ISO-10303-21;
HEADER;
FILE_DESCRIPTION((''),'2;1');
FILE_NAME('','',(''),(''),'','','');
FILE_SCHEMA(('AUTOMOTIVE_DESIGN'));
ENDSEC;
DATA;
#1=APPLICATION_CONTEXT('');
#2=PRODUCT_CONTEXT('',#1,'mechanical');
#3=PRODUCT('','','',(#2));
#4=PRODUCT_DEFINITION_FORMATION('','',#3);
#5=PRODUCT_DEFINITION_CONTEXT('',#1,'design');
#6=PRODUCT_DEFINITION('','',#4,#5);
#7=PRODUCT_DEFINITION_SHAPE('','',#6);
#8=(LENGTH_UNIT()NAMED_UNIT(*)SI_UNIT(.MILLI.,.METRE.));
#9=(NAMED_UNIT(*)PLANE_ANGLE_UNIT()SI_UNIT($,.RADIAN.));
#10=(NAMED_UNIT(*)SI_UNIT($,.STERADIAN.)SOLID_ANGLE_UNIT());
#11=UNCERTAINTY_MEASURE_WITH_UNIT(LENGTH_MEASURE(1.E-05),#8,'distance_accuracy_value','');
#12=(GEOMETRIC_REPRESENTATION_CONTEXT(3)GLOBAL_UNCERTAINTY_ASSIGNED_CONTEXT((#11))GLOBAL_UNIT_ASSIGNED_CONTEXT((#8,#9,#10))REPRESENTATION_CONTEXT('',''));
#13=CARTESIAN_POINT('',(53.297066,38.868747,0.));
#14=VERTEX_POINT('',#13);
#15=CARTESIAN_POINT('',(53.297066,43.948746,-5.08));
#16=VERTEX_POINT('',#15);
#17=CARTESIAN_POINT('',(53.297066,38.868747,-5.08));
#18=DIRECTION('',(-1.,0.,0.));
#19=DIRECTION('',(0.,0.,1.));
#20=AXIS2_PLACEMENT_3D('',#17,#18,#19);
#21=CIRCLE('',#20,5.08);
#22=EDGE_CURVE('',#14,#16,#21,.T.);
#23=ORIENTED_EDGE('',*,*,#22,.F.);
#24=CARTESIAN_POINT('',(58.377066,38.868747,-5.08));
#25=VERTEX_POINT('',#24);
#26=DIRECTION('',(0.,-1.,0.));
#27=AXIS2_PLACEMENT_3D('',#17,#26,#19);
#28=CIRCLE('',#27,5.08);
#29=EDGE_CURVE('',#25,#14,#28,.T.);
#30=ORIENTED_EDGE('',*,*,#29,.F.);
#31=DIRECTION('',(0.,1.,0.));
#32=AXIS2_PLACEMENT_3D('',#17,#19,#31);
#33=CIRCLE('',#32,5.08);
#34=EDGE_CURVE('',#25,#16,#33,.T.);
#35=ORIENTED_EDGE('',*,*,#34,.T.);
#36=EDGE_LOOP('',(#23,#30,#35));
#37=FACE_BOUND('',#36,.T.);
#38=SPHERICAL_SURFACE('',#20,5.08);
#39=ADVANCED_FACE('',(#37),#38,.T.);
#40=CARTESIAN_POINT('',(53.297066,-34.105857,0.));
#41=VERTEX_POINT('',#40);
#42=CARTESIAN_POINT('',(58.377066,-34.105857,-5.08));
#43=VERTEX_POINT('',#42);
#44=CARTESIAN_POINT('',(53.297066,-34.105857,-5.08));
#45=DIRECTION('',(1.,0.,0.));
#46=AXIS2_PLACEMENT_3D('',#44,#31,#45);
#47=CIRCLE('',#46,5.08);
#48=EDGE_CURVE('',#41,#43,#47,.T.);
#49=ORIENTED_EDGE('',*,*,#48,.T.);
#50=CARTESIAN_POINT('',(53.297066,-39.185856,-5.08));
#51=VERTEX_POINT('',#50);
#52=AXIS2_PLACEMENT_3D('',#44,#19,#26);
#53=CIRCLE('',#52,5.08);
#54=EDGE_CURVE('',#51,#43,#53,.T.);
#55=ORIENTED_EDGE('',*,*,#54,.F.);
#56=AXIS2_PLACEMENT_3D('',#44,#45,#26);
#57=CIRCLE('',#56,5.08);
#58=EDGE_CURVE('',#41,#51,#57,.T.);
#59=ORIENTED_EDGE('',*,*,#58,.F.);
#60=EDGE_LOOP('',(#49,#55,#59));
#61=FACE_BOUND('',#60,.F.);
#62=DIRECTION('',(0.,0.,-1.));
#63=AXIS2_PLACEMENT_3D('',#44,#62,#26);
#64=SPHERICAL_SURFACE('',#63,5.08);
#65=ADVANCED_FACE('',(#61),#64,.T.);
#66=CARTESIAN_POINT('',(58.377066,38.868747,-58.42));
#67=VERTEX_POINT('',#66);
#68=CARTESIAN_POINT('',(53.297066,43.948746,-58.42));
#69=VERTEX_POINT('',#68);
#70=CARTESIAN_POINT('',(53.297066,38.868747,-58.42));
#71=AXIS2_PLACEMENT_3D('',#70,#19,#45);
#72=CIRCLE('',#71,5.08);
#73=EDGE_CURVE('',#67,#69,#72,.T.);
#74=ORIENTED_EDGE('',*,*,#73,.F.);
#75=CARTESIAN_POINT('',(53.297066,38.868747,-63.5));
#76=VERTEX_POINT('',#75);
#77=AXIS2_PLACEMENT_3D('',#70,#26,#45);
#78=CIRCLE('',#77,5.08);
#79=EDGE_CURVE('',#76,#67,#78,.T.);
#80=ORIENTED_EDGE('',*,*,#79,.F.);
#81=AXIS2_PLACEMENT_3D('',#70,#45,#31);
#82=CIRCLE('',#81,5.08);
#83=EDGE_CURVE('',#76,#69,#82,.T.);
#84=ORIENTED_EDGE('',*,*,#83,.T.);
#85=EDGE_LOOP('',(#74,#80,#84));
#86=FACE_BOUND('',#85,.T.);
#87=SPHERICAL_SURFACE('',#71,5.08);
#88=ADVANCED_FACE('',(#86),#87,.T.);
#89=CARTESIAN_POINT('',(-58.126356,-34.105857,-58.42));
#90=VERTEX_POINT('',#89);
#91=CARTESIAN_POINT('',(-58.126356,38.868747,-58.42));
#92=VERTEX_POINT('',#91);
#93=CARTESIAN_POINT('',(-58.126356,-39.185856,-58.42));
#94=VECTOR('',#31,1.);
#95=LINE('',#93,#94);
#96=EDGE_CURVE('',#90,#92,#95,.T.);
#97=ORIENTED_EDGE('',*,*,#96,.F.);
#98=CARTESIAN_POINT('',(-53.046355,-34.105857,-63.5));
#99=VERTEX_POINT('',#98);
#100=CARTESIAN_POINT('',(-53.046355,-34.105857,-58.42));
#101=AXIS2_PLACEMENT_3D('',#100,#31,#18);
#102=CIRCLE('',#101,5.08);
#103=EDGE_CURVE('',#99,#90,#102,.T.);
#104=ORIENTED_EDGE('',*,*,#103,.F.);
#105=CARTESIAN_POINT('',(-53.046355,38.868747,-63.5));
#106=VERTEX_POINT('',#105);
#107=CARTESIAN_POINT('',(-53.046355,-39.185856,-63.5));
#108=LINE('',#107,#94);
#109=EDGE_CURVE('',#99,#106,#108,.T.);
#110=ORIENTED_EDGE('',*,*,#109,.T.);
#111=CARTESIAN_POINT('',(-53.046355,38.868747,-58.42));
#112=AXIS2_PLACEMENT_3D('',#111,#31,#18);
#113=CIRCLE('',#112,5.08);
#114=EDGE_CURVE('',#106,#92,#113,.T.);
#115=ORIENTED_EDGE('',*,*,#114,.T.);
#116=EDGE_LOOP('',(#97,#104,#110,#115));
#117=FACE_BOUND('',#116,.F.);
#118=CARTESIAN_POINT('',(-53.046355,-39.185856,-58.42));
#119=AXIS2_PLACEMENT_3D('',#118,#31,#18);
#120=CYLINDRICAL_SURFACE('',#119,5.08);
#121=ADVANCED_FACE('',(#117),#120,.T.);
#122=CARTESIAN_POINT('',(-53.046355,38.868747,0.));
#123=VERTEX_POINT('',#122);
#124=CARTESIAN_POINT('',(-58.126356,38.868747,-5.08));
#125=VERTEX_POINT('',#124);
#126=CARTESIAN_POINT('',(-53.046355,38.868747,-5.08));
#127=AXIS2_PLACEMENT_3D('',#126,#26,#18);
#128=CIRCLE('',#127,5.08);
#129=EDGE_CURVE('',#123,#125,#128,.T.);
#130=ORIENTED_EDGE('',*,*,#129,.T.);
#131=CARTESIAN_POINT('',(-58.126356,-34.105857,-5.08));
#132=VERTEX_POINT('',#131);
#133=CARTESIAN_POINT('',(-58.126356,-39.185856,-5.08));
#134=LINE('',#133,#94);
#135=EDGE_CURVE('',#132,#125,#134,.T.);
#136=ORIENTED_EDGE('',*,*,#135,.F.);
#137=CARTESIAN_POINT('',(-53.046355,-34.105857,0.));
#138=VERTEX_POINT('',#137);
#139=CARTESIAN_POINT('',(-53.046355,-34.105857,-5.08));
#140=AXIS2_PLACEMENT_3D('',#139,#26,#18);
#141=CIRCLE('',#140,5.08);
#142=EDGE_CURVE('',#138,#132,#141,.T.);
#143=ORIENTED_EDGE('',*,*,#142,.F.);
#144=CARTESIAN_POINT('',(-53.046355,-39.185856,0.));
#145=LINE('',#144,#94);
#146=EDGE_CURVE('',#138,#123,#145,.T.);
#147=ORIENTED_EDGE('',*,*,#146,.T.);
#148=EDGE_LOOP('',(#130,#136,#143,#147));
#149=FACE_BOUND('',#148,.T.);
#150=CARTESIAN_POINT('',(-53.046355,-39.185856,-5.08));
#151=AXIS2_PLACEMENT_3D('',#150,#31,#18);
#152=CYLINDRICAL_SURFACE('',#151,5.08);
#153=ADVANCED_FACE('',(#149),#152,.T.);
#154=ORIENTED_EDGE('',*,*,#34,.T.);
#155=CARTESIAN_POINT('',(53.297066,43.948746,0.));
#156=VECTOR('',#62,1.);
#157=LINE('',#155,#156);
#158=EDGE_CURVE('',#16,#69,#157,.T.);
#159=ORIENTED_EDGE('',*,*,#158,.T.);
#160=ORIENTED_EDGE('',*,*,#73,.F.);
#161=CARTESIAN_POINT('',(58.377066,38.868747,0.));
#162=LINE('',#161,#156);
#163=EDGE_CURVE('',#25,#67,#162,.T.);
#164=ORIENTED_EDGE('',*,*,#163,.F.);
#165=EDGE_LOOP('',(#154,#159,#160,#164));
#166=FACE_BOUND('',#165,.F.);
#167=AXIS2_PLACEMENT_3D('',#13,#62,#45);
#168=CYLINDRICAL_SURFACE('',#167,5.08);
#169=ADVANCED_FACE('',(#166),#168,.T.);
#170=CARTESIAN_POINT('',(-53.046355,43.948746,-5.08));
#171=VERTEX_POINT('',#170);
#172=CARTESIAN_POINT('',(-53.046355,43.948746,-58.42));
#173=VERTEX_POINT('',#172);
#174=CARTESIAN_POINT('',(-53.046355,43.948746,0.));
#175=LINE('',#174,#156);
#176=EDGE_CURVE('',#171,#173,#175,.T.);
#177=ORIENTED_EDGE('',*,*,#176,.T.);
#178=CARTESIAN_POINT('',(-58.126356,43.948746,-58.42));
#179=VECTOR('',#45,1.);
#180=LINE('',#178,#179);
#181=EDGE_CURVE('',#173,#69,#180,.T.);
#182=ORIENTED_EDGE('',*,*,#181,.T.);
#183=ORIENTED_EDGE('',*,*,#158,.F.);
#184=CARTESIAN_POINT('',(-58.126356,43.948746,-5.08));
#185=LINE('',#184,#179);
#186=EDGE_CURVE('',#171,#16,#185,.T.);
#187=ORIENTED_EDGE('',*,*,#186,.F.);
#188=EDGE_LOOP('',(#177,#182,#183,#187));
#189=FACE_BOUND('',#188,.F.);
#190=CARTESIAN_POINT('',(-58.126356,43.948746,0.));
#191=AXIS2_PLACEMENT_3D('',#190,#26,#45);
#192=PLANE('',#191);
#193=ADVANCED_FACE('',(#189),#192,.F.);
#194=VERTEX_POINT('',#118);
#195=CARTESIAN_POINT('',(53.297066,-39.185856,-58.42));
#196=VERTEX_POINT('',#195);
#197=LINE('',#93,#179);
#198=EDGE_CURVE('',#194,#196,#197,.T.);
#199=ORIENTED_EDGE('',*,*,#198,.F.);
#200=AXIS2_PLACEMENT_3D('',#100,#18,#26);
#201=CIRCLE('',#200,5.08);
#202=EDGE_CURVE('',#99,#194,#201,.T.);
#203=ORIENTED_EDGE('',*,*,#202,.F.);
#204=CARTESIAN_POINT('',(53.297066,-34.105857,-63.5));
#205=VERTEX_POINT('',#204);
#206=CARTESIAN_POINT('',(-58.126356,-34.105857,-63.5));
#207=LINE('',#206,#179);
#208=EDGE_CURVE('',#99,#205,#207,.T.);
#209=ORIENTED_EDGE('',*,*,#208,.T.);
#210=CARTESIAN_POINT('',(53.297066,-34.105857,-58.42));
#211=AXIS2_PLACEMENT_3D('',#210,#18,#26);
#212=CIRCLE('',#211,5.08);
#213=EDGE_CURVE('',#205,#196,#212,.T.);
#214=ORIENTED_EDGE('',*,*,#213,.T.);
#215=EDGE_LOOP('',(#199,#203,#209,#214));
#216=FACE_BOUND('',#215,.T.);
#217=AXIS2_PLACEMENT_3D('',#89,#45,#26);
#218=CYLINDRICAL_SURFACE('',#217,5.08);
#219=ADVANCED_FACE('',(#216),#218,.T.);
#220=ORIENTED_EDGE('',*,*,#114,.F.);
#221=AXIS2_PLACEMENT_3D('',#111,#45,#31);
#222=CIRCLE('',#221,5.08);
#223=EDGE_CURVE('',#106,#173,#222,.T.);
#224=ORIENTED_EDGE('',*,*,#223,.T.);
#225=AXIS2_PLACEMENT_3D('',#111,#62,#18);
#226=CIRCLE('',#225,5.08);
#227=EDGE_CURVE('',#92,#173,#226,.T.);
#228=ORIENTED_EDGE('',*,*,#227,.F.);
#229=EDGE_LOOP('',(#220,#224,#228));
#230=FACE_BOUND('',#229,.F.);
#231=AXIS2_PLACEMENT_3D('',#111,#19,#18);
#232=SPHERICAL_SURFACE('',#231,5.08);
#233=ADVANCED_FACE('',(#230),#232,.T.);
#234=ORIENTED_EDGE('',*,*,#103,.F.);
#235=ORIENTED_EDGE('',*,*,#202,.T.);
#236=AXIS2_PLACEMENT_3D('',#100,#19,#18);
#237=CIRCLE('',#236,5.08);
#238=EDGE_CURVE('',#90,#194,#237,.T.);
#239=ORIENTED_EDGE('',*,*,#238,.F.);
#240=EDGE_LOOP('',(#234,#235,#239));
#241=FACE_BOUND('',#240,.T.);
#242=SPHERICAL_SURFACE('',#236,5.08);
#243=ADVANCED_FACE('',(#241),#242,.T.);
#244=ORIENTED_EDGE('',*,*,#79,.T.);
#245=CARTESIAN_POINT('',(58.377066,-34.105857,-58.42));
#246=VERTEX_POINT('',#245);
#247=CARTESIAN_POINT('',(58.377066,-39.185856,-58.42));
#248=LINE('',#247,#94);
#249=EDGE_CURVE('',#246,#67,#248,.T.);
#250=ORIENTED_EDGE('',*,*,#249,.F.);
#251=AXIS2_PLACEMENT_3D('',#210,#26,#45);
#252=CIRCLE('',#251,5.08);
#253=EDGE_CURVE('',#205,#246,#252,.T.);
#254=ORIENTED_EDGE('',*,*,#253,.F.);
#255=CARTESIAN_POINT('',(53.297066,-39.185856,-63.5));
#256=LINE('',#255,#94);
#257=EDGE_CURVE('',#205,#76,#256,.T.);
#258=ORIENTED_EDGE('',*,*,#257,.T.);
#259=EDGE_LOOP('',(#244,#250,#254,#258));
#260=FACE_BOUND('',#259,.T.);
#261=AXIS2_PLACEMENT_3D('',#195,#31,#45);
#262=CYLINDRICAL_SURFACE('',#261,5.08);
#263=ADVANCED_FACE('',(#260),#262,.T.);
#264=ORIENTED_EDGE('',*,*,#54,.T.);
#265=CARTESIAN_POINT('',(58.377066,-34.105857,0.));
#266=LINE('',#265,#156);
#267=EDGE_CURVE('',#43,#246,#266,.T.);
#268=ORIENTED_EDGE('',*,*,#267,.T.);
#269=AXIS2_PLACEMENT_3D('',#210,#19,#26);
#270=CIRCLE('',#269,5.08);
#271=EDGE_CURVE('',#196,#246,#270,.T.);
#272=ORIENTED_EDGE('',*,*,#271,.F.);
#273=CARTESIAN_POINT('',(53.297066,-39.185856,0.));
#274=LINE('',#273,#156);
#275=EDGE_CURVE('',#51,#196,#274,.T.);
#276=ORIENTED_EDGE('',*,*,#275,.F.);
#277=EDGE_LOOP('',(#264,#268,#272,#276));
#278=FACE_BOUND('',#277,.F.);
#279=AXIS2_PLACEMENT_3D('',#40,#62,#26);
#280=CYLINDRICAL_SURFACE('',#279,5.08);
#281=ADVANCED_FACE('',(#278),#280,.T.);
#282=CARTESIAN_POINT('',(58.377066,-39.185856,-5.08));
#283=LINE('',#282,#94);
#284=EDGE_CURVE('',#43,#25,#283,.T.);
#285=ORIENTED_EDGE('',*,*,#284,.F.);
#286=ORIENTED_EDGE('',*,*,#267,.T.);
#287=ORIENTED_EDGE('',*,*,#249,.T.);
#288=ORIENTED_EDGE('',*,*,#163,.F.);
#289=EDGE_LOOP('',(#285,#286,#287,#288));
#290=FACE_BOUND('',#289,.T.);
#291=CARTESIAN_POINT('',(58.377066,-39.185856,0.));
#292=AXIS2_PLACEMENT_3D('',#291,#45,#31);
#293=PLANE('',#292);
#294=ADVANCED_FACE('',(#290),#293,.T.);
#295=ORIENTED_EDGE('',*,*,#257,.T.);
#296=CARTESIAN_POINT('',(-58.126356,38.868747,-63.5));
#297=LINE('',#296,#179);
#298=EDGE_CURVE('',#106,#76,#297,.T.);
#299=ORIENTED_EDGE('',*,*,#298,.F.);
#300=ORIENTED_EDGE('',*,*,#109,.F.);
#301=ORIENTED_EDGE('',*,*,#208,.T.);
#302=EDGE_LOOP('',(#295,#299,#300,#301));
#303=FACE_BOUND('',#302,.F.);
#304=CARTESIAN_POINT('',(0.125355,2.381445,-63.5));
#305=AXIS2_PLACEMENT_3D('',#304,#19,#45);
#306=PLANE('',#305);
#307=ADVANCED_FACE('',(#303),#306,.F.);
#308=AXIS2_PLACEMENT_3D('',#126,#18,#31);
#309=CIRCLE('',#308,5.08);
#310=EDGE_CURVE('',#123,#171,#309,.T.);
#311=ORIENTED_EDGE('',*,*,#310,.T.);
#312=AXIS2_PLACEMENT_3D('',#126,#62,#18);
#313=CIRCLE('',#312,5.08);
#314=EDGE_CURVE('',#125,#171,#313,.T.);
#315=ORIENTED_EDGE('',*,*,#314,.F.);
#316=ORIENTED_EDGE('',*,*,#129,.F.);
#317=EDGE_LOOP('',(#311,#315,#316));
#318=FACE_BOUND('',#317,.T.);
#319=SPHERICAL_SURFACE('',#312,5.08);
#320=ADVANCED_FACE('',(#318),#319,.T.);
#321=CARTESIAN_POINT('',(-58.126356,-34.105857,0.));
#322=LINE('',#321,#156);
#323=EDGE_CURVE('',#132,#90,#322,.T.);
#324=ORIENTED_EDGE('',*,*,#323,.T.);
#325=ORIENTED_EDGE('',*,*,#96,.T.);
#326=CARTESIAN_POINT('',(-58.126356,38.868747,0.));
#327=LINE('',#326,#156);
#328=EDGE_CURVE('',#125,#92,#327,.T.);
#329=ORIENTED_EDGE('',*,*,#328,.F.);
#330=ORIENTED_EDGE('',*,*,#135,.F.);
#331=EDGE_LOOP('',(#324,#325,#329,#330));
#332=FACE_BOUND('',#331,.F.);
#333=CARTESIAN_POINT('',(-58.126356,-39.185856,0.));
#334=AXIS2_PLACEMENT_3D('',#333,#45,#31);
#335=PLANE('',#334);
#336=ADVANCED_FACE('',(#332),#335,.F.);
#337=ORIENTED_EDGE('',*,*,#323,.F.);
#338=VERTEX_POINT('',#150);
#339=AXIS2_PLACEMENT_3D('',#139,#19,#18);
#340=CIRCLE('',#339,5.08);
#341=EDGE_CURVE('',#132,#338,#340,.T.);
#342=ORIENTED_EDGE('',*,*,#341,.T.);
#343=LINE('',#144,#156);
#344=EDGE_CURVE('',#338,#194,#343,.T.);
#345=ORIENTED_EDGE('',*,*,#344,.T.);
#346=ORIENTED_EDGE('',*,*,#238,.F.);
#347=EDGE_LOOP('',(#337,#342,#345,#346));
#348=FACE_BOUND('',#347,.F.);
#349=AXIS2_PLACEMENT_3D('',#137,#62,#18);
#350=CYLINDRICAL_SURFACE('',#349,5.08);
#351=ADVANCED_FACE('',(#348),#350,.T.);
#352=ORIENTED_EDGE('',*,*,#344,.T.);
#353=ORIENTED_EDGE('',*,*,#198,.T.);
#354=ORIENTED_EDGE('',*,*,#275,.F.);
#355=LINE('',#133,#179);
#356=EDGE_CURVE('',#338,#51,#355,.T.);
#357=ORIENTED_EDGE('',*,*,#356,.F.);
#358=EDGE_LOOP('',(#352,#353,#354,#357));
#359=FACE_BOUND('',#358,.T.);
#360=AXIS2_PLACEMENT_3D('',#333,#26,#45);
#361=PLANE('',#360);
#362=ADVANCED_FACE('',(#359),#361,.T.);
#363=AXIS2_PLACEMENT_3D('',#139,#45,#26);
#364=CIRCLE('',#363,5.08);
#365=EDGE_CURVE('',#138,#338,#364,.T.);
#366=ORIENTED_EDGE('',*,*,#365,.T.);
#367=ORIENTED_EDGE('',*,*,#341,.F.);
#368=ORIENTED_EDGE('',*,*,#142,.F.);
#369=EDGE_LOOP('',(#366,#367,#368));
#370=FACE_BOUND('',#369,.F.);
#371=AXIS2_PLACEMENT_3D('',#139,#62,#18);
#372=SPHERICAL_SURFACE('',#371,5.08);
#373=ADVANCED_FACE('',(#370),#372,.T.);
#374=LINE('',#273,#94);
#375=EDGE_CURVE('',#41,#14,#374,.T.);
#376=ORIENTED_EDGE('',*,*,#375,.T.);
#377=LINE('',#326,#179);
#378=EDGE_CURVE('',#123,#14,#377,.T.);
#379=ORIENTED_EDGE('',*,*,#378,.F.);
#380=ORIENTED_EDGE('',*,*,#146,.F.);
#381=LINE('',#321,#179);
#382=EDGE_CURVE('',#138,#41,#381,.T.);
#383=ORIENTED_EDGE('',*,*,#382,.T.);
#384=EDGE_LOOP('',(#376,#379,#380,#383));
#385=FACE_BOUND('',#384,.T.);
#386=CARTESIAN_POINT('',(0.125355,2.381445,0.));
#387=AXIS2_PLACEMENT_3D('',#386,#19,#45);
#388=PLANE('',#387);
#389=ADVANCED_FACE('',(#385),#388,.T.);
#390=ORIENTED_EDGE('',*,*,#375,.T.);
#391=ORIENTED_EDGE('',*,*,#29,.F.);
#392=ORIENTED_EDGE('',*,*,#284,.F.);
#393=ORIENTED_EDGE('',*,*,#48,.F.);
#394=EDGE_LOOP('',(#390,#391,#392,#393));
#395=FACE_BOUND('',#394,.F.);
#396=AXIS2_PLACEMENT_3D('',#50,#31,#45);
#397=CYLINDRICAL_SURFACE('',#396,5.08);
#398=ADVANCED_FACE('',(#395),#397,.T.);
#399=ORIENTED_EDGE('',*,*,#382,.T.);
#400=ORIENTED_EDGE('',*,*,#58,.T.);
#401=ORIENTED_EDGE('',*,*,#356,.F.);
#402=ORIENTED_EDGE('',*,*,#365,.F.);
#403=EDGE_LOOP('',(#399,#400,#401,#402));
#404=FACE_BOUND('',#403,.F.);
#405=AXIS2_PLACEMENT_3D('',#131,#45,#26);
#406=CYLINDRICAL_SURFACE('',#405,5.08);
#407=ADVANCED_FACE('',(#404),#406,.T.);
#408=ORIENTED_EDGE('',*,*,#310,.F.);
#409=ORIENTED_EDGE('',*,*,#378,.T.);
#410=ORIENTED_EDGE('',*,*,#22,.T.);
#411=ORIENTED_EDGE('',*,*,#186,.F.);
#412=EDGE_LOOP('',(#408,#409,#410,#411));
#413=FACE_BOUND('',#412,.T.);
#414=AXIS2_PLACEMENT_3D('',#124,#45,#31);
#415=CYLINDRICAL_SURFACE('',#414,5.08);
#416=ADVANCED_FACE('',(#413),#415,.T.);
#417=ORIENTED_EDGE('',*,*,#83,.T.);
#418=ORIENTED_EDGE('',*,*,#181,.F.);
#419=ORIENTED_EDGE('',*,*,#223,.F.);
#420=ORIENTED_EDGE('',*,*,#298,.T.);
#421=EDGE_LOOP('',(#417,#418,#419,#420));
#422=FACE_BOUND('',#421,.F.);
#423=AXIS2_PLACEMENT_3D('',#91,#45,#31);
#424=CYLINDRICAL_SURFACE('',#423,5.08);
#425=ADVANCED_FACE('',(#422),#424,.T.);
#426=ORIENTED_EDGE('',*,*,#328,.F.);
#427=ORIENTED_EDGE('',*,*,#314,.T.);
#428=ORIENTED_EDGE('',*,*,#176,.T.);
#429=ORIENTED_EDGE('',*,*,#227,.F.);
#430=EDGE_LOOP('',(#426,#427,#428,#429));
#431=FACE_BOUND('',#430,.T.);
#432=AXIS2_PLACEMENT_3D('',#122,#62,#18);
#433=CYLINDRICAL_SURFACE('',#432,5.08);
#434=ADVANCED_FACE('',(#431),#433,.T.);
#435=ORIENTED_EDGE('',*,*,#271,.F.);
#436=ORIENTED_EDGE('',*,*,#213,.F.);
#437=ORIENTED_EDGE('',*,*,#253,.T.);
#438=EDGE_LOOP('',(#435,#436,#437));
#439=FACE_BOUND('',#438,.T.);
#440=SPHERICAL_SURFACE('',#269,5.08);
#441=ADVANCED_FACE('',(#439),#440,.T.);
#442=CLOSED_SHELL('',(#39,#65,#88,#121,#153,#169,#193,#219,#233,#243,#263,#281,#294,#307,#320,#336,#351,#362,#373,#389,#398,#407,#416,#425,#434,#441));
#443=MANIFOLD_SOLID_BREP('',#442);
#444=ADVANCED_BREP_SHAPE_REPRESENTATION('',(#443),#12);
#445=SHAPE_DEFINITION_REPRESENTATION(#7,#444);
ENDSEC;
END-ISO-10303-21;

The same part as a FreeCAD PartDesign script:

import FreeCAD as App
import Part
import Sketcher

V = App.Vector


def add_polygon(sketch, points):
    """Adds a closed chain of lines whose ends are joined by coincident constraints."""
    first, n = sketch.GeometryCount, len(points)
    for a, b in zip(points, points[1:] + points[:1]):
        sketch.addGeometry(Part.LineSegment(App.Vector(*a, 0), App.Vector(*b, 0)), False)
    for i in range(n):
        sketch.addConstraint(Sketcher.Constraint("Coincident", first + i, 2, first + (i + 1) % n, 1))

doc = App.newDocument("Part")
params = doc.addObject("Spreadsheet::Sheet", "Params")
for row, (alias, value) in enumerate([
    ("pad1_length", "2.5 in"),
    ("fillet_radius", "0.2 in"),
], start=1):
    params.set(f"A{row}", alias)
    params.set(f"B{row}", "=" + value)
    params.setAlias(f"B{row}", alias)

body = doc.addObject("PartDesign::Body", "Body")

# Sketch on XY plane
sketch1 = body.newObject("Sketcher::SketchObject", "Sketch")
sketch1.AttachmentSupport = (doc.getObject("XY_Plane"), [""])
sketch1.MapMode = "FlatFace"
add_polygon(sketch1, [(-58, 44), (-58, -39), (58, -39), (58, 44)])  # lines 0-3
sketch1.addConstraint([
    Sketcher.Constraint("Vertical", 0),
    Sketcher.Constraint("Horizontal", 1),
    Sketcher.Constraint("Vertical", 2),
    Sketcher.Constraint("Horizontal", 3),
    Sketcher.Constraint("DistanceX", 1, 1, 1, 2, 116.503421),
    Sketcher.Constraint("DistanceY", 0, 2, 0, 1, 83.134603),
    Sketcher.Constraint("DistanceX", 0, 2, -1, 1, 58.126356),
    Sketcher.Constraint("DistanceY", 0, 2, -1, 1, 39.185856),
])
pad1 = body.newObject("PartDesign::Pad", "Pad")
pad1.Profile = sketch1
pad1.setExpression("Length", "Params.pad1_length")
pad1.Reversed = True
doc.recompute()

fillet = body.newObject("PartDesign::Fillet", "Fillet")
fillet.Base = (pad1, ["Edge1"])
fillet.UseAllEdges = True
fillet.setExpression("Radius", "Params.fillet_radius")

doc.recompute()
